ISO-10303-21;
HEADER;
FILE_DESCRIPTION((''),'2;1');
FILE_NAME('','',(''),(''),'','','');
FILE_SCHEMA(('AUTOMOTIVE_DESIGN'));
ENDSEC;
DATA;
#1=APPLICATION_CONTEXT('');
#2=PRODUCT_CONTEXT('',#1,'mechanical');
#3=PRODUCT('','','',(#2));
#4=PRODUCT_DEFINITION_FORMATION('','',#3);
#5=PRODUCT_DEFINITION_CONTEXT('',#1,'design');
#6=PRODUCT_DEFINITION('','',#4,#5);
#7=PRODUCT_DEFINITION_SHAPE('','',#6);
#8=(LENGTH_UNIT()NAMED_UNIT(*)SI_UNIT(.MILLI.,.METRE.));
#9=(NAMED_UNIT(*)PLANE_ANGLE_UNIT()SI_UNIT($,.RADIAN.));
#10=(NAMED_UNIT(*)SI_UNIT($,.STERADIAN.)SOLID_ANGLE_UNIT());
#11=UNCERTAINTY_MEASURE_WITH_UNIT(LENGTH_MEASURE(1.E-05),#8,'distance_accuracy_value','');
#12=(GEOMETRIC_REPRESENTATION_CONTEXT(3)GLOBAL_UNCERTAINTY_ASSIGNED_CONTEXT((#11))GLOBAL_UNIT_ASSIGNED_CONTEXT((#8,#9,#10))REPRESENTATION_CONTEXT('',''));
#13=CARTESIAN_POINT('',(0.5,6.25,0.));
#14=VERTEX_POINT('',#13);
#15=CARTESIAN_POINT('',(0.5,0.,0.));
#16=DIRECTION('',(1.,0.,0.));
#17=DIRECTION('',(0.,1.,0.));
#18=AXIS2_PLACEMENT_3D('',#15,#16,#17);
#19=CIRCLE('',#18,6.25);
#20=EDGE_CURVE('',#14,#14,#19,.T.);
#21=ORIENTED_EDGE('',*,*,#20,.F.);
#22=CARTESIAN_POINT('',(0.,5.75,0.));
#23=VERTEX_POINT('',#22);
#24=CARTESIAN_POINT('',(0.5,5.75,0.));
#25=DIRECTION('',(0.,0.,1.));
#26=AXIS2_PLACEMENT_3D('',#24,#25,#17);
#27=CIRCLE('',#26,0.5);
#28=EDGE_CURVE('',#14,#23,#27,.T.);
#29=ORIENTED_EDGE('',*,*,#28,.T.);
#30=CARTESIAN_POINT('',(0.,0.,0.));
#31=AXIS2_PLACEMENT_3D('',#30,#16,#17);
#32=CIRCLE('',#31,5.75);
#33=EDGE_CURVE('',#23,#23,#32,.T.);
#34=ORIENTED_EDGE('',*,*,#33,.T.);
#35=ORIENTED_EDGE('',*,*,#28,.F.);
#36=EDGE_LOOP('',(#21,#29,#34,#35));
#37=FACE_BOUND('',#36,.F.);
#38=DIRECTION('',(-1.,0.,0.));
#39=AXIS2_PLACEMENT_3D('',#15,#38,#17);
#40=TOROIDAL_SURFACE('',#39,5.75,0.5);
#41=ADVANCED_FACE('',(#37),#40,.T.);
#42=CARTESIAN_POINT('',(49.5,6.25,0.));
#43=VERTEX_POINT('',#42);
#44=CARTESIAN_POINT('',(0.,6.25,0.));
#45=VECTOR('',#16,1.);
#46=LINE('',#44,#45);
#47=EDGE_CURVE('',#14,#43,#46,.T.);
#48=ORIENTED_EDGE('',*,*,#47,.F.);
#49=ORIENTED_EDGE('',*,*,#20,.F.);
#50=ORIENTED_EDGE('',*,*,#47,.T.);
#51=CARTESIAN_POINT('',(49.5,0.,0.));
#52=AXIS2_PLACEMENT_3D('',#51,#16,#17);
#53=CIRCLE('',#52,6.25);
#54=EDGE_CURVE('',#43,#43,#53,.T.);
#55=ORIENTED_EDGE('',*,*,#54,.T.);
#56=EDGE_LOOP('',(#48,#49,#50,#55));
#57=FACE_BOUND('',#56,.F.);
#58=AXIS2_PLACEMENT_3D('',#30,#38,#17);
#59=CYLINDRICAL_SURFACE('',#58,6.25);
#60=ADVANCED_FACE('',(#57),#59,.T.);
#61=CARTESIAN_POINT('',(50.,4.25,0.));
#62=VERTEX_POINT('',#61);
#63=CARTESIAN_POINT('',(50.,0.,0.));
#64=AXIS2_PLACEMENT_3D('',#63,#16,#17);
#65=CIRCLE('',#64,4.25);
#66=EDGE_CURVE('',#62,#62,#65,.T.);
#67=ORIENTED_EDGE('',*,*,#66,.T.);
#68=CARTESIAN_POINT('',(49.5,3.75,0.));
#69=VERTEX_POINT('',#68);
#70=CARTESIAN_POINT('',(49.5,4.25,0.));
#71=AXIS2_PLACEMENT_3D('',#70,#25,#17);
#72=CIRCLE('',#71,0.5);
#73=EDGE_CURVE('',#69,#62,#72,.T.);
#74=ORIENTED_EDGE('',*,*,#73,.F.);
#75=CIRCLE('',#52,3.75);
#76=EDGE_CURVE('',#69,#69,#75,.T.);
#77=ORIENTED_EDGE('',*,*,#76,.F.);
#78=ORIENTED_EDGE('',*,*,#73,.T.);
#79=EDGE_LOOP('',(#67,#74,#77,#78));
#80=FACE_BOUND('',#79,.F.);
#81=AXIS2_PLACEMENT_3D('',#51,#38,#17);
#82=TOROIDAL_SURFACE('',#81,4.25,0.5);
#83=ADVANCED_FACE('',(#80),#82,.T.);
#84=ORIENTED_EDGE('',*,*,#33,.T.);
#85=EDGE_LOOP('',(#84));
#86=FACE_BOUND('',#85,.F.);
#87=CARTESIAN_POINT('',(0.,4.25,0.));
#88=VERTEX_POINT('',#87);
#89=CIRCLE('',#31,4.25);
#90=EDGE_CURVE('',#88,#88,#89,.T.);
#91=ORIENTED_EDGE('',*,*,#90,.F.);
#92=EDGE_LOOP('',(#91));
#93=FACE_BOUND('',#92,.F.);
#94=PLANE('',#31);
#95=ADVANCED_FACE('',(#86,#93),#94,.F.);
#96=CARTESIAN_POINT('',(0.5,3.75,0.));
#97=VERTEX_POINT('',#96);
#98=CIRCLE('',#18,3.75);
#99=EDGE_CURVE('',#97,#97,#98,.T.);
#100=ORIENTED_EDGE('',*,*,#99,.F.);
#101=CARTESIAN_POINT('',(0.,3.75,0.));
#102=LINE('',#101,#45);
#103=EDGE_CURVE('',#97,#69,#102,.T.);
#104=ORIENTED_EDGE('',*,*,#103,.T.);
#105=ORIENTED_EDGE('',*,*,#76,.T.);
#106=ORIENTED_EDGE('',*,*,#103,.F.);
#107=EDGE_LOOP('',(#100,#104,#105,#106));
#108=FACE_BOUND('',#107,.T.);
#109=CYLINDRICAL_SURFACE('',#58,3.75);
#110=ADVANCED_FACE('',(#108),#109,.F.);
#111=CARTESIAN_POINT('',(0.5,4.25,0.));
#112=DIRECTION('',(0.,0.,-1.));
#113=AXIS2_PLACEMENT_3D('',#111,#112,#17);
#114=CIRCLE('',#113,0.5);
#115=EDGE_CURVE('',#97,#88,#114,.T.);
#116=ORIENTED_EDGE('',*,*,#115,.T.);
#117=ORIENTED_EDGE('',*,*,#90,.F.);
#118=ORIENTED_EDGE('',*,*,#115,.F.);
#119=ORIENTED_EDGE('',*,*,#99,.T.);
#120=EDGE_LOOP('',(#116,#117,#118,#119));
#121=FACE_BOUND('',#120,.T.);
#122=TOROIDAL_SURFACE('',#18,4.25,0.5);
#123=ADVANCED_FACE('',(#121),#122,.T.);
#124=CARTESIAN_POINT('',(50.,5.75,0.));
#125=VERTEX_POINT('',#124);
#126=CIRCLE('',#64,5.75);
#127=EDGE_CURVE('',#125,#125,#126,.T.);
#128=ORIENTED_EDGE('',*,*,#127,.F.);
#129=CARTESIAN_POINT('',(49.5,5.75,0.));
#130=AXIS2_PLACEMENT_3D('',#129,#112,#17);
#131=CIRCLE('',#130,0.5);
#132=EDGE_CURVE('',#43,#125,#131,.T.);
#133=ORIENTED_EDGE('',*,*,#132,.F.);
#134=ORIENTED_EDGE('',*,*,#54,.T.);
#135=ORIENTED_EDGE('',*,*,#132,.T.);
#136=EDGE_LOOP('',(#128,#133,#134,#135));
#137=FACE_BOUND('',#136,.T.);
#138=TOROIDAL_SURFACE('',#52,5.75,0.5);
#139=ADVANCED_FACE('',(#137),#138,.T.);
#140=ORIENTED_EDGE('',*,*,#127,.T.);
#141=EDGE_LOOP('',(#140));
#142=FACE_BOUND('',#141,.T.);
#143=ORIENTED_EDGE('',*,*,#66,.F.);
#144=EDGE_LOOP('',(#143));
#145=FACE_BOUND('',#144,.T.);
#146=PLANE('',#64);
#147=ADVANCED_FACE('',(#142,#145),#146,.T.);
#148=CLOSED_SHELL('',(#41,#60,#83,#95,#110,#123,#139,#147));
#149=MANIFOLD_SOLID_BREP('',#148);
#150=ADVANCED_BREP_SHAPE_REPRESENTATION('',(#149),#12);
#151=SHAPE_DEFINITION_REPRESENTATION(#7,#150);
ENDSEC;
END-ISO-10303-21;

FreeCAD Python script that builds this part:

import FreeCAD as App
import Part
import Sketcher
Q = App.Units.Quantity


def edges_at(feature, points):
    """Names of the edges that pass closest to the given points."""
    edges = feature.Shape.Edges
    near = lambda p: min(range(len(edges)), key=lambda i: edges[i].distToShape(Part.Vertex(*p))[0])
    return sorted({f"Edge{near(p) + 1}" for p in points})

doc = App.newDocument("Part")
body = doc.addObject("PartDesign::Body", "Body")

# Sketch on YZ plane
sketch1 = body.newObject("Sketcher::SketchObject", "Sketch")
sketch1.AttachmentSupport = (doc.getObject("YZ_Plane"), [""])
sketch1.MapMode = "FlatFace"
sketch1.addGeometry([
    Part.Circle(App.Vector(0, 0, 0), App.Vector(0, 0, 1), 6.2),
    Part.Circle(App.Vector(0, 0, 0), App.Vector(0, 0, 1), 3.8),
], False)
sketch1.addConstraint([
    Sketcher.Constraint("Coincident", 0, 3, -1, 1),
    Sketcher.Constraint("Coincident", 1, 3, -1, 1),
    Sketcher.Constraint("Diameter", 0, Q("12.5 mm")),
    Sketcher.Constraint("Diameter", 1, Q("7.5 mm")),
])
pad1 = body.newObject("PartDesign::Pad", "Pad")
pad1.Profile = sketch1
pad1.Length = 50
doc.recompute()

fillet = body.newObject("PartDesign::Fillet", "Fillet")
fillet.Base = (pad1, edges_at(pad1, [
    (0, -6.25, 0),
    (0, -3.75, 0),
    (50, -6.25, 0),
    (50, -3.75, 0),
]))
fillet.Radius = 0.5

doc.recompute()
